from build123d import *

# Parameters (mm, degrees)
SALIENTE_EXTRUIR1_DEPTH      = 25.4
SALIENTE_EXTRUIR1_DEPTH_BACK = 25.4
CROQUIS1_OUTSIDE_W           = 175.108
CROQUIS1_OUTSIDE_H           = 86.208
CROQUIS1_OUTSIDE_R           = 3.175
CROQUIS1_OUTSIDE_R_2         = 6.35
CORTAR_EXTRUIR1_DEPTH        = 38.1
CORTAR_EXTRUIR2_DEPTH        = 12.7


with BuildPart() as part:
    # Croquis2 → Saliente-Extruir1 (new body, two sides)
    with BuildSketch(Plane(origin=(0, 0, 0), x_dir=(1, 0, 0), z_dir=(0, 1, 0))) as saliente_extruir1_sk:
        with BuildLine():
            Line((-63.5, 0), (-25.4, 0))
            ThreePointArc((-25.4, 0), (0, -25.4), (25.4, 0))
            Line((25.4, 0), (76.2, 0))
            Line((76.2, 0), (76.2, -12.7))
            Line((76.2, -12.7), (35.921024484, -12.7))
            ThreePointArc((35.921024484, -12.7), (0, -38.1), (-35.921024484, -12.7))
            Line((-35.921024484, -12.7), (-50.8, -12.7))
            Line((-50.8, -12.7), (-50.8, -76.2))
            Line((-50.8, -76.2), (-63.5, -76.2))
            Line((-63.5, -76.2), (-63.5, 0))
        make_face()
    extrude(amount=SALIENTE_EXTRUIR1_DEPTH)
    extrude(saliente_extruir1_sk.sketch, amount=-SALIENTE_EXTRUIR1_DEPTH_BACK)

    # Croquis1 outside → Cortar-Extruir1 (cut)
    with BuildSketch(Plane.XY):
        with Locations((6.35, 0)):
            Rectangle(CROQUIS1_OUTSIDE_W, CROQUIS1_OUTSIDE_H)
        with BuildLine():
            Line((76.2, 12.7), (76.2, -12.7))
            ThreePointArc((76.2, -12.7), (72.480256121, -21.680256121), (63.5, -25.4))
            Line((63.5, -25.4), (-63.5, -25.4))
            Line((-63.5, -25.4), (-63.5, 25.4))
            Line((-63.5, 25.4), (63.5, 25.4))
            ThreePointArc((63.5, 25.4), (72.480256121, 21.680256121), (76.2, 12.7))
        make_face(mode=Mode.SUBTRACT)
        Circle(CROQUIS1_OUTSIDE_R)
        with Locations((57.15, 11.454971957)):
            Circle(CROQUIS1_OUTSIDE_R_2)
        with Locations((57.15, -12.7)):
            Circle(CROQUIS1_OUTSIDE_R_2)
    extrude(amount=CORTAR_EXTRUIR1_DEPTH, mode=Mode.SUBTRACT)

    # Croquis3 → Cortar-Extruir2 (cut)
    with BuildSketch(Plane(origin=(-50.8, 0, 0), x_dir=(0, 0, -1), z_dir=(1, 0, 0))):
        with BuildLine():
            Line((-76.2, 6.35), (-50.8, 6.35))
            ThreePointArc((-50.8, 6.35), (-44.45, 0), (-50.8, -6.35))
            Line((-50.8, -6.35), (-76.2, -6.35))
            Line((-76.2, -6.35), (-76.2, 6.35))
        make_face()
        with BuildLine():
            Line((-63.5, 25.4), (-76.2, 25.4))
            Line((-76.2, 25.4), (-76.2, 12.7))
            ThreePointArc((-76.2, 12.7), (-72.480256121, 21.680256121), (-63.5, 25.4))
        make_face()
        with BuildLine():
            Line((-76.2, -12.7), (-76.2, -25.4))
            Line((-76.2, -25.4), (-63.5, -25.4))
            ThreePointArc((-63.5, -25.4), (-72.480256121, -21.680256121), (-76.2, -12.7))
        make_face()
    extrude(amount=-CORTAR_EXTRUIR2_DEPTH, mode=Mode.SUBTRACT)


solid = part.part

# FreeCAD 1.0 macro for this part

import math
import FreeCAD as App
import Part
import Sketcher
from FreeCAD import Vector
Q = App.Units.Quantity

doc = App.newDocument("Part")
params = doc.addObject("Spreadsheet::Sheet", "Params")
for row, (alias, value) in enumerate([
    ("sketch1_radius", "1 in"),
    ("sketch1_radius2", "1.5 in"),
    ("sketch1_width", "2 in"),
    ("sketch1_height", "3 in"),
    ("sketch1_width2", "1.5 in"),
    ("pad1_length", "1 in"),
    ("pad1_length2", "1 in"),
    ("sketch2_diameter", "0.5 in"),
    ("sketch2_radius", "0.5 in"),
    ("sketch2_diameter2", "0.25 in"),
    ("sketch2_width", "5 in"),
    ("sketch2_height", "1 in"),
    ("pocket1_length", "1.5 in"),
    ("sketch3_radius", "0.5 in"),
    ("sketch3_height", "1 in"),
    ("pocket2_length", "0.5 in"),
], start=1):
    params.set(f"A{row}", alias)
    params.set(f"B{row}", "=" + value)
    params.setAlias(f"B{row}", alias)

body = doc.addObject("PartDesign::Body", "Body")

# Sketch on XZ plane
sketch1 = body.newObject("Sketcher::SketchObject", "Sketch")
sketch1.AttachmentSupport = (doc.getObject("XZ_Plane"), [""])
sketch1.MapMode = "FlatFace"
sketch1.addGeometry([
    Part.LineSegment(Vector(-25.4, 0, 0), Vector(-63.5, 0, 0)),  # 0
    Part.LineSegment(Vector(-63.5, 0, 0), Vector(-63.5, 76.2, 0)),  # 1
    Part.LineSegment(Vector(-63.5, 76.2, 0), Vector(-50.8, 76.2, 0)),  # 2
    Part.LineSegment(Vector(-50.8, 76.2, 0), Vector(-50.8, 12.7, 0)),  # 3
    Part.LineSegment(Vector(-50.8, 12.7, 0), Vector(-35.921024, 12.7, 0)),  # 4
    Part.ArcOfCircle(Part.Circle(Vector(0, 0, 0), Vector(0, 0, 1), 38.1), math.radians(19.471221), math.radians(160.528779)),  # 5
    Part.LineSegment(Vector(35.921024, 12.7, 0), Vector(76.2, 12.7, 0)),  # 6
    Part.LineSegment(Vector(76.2, 12.7, 0), Vector(76.2, 0, 0)),  # 7
    Part.LineSegment(Vector(76.2, 0, 0), Vector(25.4, 0, 0)),  # 8
    Part.ArcOfCircle(Part.Circle(Vector(0, 0, 0), Vector(0, 0, 1), 25.4), math.radians(0), math.radians(180)),  # 9
], False)
sketch1.addConstraint([
    Sketcher.Constraint("Coincident", 0, 2, 1, 1),
    Sketcher.Constraint("Coincident", 1, 2, 2, 1),
    Sketcher.Constraint("Coincident", 2, 2, 3, 1),
    Sketcher.Constraint("Coincident", 3, 2, 4, 1),
    Sketcher.Constraint("Coincident", 4, 2, 5, 2),
    Sketcher.Constraint("Coincident", 5, 1, 6, 1),
    Sketcher.Constraint("Coincident", 6, 2, 7, 1),
    Sketcher.Constraint("Coincident", 7, 2, 8, 1),
    Sketcher.Constraint("Coincident", 8, 2, 9, 1),
    Sketcher.Constraint("Coincident", 9, 2, 0, 1),
    Sketcher.Constraint("Horizontal", 0),
    Sketcher.Constraint("Vertical", 1),
    Sketcher.Constraint("Horizontal", 2),
    Sketcher.Constraint("Vertical", 3),
    Sketcher.Constraint("Horizontal", 4),
    Sketcher.Constraint("Horizontal", 6),
    Sketcher.Constraint("Vertical", 7),
    Sketcher.Constraint("Horizontal", 8),
    Sketcher.Constraint("Coincident", 5, 3, -1, 1),
    Sketcher.Constraint("Coincident", 9, 3, -1, 1),
    Sketcher.Constraint("PointOnObject", 0, 2, -1),
    Sketcher.Constraint("PointOnObject", 7, 2, -1),
    Sketcher.Constraint("Horizontal", 4, 2, 5, 1),
    Sketcher.Constraint("Equal", 2, 7),
    Sketcher.Constraint("Radius", 9, Q("1 in")),
    Sketcher.Constraint("Radius", 5, Q("1.5 in")),
    Sketcher.Constraint("DistanceX", 8, 2, 8, 1, Q("2 in")),
    Sketcher.Constraint("DistanceY", 1, 1, 1, 2, Q("3 in")),
    Sketcher.Constraint("DistanceX", 0, 2, 0, 1, Q("1.5 in")),
    Sketcher.Constraint("DistanceX", 2, 1, 2, 2, Q("0.5 in")),
])
sketch1.setExpression("Constraints[24]", "Params.sketch1_radius")
sketch1.setExpression("Constraints[25]", "Params.sketch1_radius2")
sketch1.setExpression("Constraints[26]", "Params.sketch1_width")
sketch1.setExpression("Constraints[27]", "Params.sketch1_height")
sketch1.setExpression("Constraints[28]", "Params.sketch1_width2")
pad1 = body.newObject("PartDesign::Pad", "Pad")
pad1.Profile = sketch1
pad1.Type = "TwoLengths"
pad1.setExpression("Length", "Params.pad1_length")
pad1.setExpression("Length2", "Params.pad1_length2")
pad1.Reversed = True

# Sketch on XY plane
sketch2 = body.newObject("Sketcher::SketchObject", "Sketch001")
sketch2.AttachmentSupport = (doc.getObject("XY_Plane"), [""])
sketch2.MapMode = "FlatFace"
sketch2.addGeometry([
    Part.LineSegment(Vector(-81.204, 43.104, 0), Vector(-81.204, -43.104, 0)),  # 0
    Part.LineSegment(Vector(-81.204, -43.104, 0), Vector(93.904, -43.104, 0)),  # 1
    Part.LineSegment(Vector(93.904, -43.104, 0), Vector(93.904, 43.104, 0)),  # 2
    Part.LineSegment(Vector(93.904, 43.104, 0), Vector(-81.204, 43.104, 0)),  # 3
    Part.ArcOfCircle(Part.Circle(Vector(63.5, 12.7, 0), Vector(0, 0, 1), 12.7), math.radians(0), math.radians(90)),  # 4
    Part.LineSegment(Vector(76.2, 12.7, 0), Vector(76.2, -12.7, 0)),  # 5
    Part.ArcOfCircle(Part.Circle(Vector(63.5, -12.7, 0), Vector(0, 0, 1), 12.7), math.radians(-90), math.radians(0)),  # 6
    Part.LineSegment(Vector(63.5, -25.4, 0), Vector(-63.5, -25.4, 0)),  # 7
    Part.LineSegment(Vector(-63.5, -25.4, 0), Vector(-63.5, 25.4, 0)),  # 8
    Part.LineSegment(Vector(-63.5, 25.4, 0), Vector(63.5, 25.4, 0)),  # 9
    Part.Circle(Vector(0, 0, 0), Vector(0, 0, 1), 3.175),  # 10
    Part.Circle(Vector(57.15, 11.454972, 0), Vector(0, 0, 1), 6.35),  # 11
    Part.Circle(Vector(57.15, -12.7, 0), Vector(0, 0, 1), 6.35),  # 12
], False)
sketch2.addConstraint([
    Sketcher.Constraint("Coincident", 0, 2, 1, 1),
    Sketcher.Constraint("Coincident", 1, 2, 2, 1),
    Sketcher.Constraint("Coincident", 2, 2, 3, 1),
    Sketcher.Constraint("Coincident", 3, 2, 0, 1),
    Sketcher.Constraint("Tangent", 4, 1, 5, 1),
    Sketcher.Constraint("Tangent", 5, 2, 6, 2),
    Sketcher.Constraint("Tangent", 6, 1, 7, 1),
    Sketcher.Constraint("Coincident", 7, 2, 8, 1),
    Sketcher.Constraint("Coincident", 8, 2, 9, 1),
    Sketcher.Constraint("Tangent", 9, 2, 4, 2),
    Sketcher.Constraint("Vertical", 0),
    Sketcher.Constraint("Horizontal", 1),
    Sketcher.Constraint("Vertical", 2),
    Sketcher.Constraint("Horizontal", 3),
    Sketcher.Constraint("Vertical", 5),
    Sketcher.Constraint("Horizontal", 7),
    Sketcher.Constraint("Vertical", 8),
    Sketcher.Constraint("Horizontal", 9),
    Sketcher.Constraint("Coincident", 10, 3, -1, 1),
    Sketcher.Constraint("Equal", 4, 6),
    Sketcher.Constraint("Equal", 11, 12),
    Sketcher.Constraint("Symmetric", 6, 1, 8, 2, -1, 1),
    Sketcher.Constraint("Horizontal", 6, 3, 12, 3),
    Sketcher.Constraint("Vertical", 11, 3, 12, 3),
    Sketcher.Constraint("Diameter", 11, Q("0.5 in")),
    Sketcher.Constraint("Radius", 4, Q("0.5 in")),
    Sketcher.Constraint("Diameter", 10, Q("0.25 in")),
    Sketcher.Constraint("DistanceX", 7, 2, 7, 1, Q("5 in")),
    Sketcher.Constraint("DistanceY", 5, 2, 5, 1, Q("1 in")),
    Sketcher.Constraint("DistanceX", -1, 1, 11, 3, Q("2.25 in")),
    Sketcher.Constraint("DistanceX", 1, 1, 1, 2, Q("175.108 mm")),
    Sketcher.Constraint("DistanceY", 0, 2, 0, 1, Q("86.208 mm")),
    Sketcher.Constraint("DistanceX", 0, 2, -1, 1, Q("81.204 mm")),
    Sketcher.Constraint("DistanceY", 0, 2, -1, 1, Q("43.104 mm")),
    Sketcher.Constraint("DistanceY", -1, 1, 11, 3, Q("11.454972 mm")),
])
sketch2.setExpression("Constraints[24]", "Params.sketch2_diameter")
sketch2.setExpression("Constraints[25]", "Params.sketch2_radius")
sketch2.setExpression("Constraints[26]", "Params.sketch2_diameter2")
sketch2.setExpression("Constraints[27]", "Params.sketch2_width")
sketch2.setExpression("Constraints[28]", "Params.sketch2_height")
pocket1 = body.newObject("PartDesign::Pocket", "Pocket")
pocket1.Profile = sketch2
pocket1.setExpression("Length", "Params.pocket1_length")
pocket1.Reversed = True

# Sketch on YZ plane
sketch3 = body.newObject("Sketcher::SketchObject", "Sketch002")
sketch3.AttachmentSupport = (doc.getObject("YZ_Plane"), [""])
sketch3.MapMode = "FlatFace"
sketch3.AttachmentOffset = App.Placement(Vector(0, 0, -2 * 25.4), App.Rotation())
sketch3.addGeometry([
    Part.LineSegment(Vector(6.35, 50.8, 0), Vector(6.35, 76.2, 0)),  # 0
    Part.LineSegment(Vector(6.35, 76.2, 0), Vector(-6.35, 76.2, 0)),  # 1
    Part.LineSegment(Vector(-6.35, 76.2, 0), Vector(-6.35, 50.8, 0)),  # 2
    Part.ArcOfCircle(Part.Circle(Vector(0, 50.8, 0), Vector(0, 0, 1), 6.35), math.radians(180), math.radians(360)),  # 3
    Part.LineSegment(Vector(25.4, 63.5, 0), Vector(25.4, 76.2, 0)),  # 4
    Part.LineSegment(Vector(25.4, 76.2, 0), Vector(12.7, 76.2, 0)),  # 5
    Part.ArcOfCircle(Part.Circle(Vector(12.7, 63.5, 0), Vector(0, 0, 1), 12.7), math.radians(0), math.radians(90)),  # 6
    Part.LineSegment(Vector(-12.7, 76.2, 0), Vector(-25.4, 76.2, 0)),  # 7
    Part.LineSegment(Vector(-25.4, 76.2, 0), Vector(-25.4, 63.5, 0)),  # 8
    Part.ArcOfCircle(Part.Circle(Vector(-12.7, 63.5, 0), Vector(0, 0, 1), 12.7), math.radians(90), math.radians(180)),  # 9
], False)
sketch3.addConstraint([
    Sketcher.Constraint("Coincident", 0, 2, 1, 1),
    Sketcher.Constraint("Coincident", 1, 2, 2, 1),
    Sketcher.Constraint("Tangent", 2, 2, 3, 1),
    Sketcher.Constraint("Tangent", 3, 2, 0, 1),
    Sketcher.Constraint("Coincident", 4, 2, 5, 1),
    Sketcher.Constraint("Tangent", 5, 2, 6, 2),
    Sketcher.Constraint("Tangent", 6, 1, 4, 1),
    Sketcher.Constraint("Coincident", 7, 2, 8, 1),
    Sketcher.Constraint("Tangent", 8, 2, 9, 2),
    Sketcher.Constraint("Tangent", 9, 1, 7, 1),
    Sketcher.Constraint("Vertical", 0),
    Sketcher.Constraint("Horizontal", 1),
    Sketcher.Constraint("Vertical", 2),
    Sketcher.Constraint("Vertical", 4),
    Sketcher.Constraint("Horizontal", 5),
    Sketcher.Constraint("Horizontal", 7),
    Sketcher.Constraint("Vertical", 8),
    Sketcher.Constraint("Equal", 6, 9),
    Sketcher.Constraint("Symmetric", 6, 3, 9, 3, -2),
    Sketcher.Constraint("PointOnObject", 3, 3, -2),
    Sketcher.Constraint("Horizontal", 1, 2, 4, 2),
    Sketcher.Constraint("Equal", 1, 5),
    Sketcher.Constraint("Radius", 6, Q("0.5 in")),
    Sketcher.Constraint("DistanceY", 0, 1, 0, 2, Q("1 in")),
    Sketcher.Constraint("DistanceY", -1, 1, 3, 3, Q("2 in")),
    Sketcher.Constraint("DistanceX", -1, 1, 4, 2, Q("1 in")),
])
sketch3.setExpression("Constraints[22]", "Params.sketch3_radius")
sketch3.setExpression("Constraints[23]", "Params.sketch3_height")
pocket2 = body.newObject("PartDesign::Pocket", "Pocket001")
pocket2.Profile = sketch3
pocket2.setExpression("Length", "Params.pocket2_length")

doc.recompute()
